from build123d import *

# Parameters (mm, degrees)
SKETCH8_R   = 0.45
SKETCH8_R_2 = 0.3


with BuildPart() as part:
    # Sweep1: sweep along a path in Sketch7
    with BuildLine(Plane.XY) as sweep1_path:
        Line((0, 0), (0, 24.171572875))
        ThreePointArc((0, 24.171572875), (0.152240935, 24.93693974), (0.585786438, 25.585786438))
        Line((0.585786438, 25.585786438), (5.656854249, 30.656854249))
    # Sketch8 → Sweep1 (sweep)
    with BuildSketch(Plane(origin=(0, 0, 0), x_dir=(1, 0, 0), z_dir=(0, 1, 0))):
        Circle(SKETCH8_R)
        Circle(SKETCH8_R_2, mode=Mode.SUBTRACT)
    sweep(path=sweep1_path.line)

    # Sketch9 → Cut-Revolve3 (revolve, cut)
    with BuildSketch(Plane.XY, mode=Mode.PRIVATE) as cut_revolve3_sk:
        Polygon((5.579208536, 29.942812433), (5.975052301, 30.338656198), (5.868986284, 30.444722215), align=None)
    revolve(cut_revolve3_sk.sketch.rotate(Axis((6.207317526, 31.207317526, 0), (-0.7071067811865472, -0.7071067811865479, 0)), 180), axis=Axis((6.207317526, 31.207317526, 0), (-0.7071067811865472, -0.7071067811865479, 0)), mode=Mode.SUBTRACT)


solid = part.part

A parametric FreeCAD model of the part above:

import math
import FreeCAD as App
import Part
import Sketcher

V = App.Vector
Q = App.Units.Quantity


def add_polygon(sketch, points):
    """Adds a closed chain of lines whose ends are joined by coincident constraints."""
    first, n = sketch.GeometryCount, len(points)
    for a, b in zip(points, points[1:] + points[:1]):
        sketch.addGeometry(Part.LineSegment(App.Vector(*a, 0), App.Vector(*b, 0)), False)
    for i in range(n):
        sketch.addConstraint(Sketcher.Constraint("Coincident", first + i, 2, first + (i + 1) % n, 1))

doc = App.newDocument("Part")
body = doc.addObject("PartDesign::Body", "Body")

sketch1 = doc.addObject("Sketcher::SketchObject", "Sketch")
body.addObject(sketch1)
sketch1.AttachmentSupport = (doc.XZ_Plane, [""])
sketch1.MapMode = "FlatFace"
sketch1.addGeometry([
    Part.Circle(V(0, 0, 0), V(0, 0, 1), 0.45),
    Part.Circle(V(0, 0, 0), V(0, 0, 1), 0.3),
], False)
sketch1.addConstraint([
    Sketcher.Constraint("Coincident", 0, 3, -1, 1),
    Sketcher.Constraint("Coincident", 1, 3, -1, 1),
    Sketcher.Constraint("Diameter", 0, 0.9),
    Sketcher.Constraint("Diameter", 1, 0.6),
])

sketch2 = doc.addObject("Sketcher::SketchObject", "Sketch001")
body.addObject(sketch2)
sketch2.AttachmentSupport = (doc.XY_Plane, [""])
sketch2.MapMode = "FlatFace"
sketch2.addGeometry([
    Part.LineSegment(V(0, 0, 0), V(0, 24.2, 0)),
    Part.ArcOfCircle(Part.Circle(V(2, 24.2, 0), V(0, 0, 1), 2), math.radians(135), math.radians(180)),
    Part.LineSegment(V(0.6, 25.6, 0), V(5.7, 30.7, 0)),
], False)
sketch2.addConstraint([
    Sketcher.Constraint("Tangent", 0, 2, 1, 2),
    Sketcher.Constraint("Tangent", 1, 1, 2, 1),
    Sketcher.Constraint("Vertical", 0),
    Sketcher.Constraint("Coincident", 0, 1, -1, 1),
    Sketcher.Constraint("Radius", 1, 2.0),
    Sketcher.Constraint("Angle", 2, Q("45 deg")),
    Sketcher.Constraint("DistanceY", 0, 1, 0, 2, 24.171573),
    Sketcher.Constraint("DistanceY", 1, 3, 2, 2, 6.485281),
])
doc.recompute()

additivepipe = doc.addObject("PartDesign::AdditivePipe", "AdditivePipe")
body.addObject(additivepipe)
additivepipe.Profile = sketch1
additivepipe.Spine = (sketch2, ["Edge1", "Edge2", "Edge3"])

sketch3 = doc.addObject("Sketcher::SketchObject", "Sketch002")
body.addObject(sketch3)
sketch3.AttachmentSupport = (doc.XY_Plane, [""])
sketch3.MapMode = "FlatFace"
add_polygon(sketch3, [(5.58, 29.94), (5.98, 30.34), (5.87, 30.44)])
sketch3.addGeometry(Part.LineSegment(V(5.66, 30.66, 0), V(5.26, 30.26, 0)), True)
sketch3.addConstraint([
    Sketcher.Constraint("Perpendicular", 0, 1),
    Sketcher.Constraint("Perpendicular", 1, 3),
    Sketcher.Constraint("Equal", 0, 3),
    Sketcher.Constraint("Angle", 0, Q("45 deg")),
    Sketcher.Constraint("Angle", 2, Q("-120 deg")),
    Sketcher.Constraint("Distance", 1, 0.15),
    Sketcher.Constraint("DistanceX", 3, 1, 0, 2, 0.318198),
    Sketcher.Constraint("DistanceY", 0, 2, 3, 1, 0.318198),
    Sketcher.Constraint("DistanceX", -1, 1, 2, 2, 5.579209),
    Sketcher.Constraint("DistanceY", -1, 1, 3, 2, 30.26101),
])
groove = doc.addObject("PartDesign::Groove", "Groove")
body.addObject(groove)
groove.Profile = sketch3
groove.ReferenceAxis = (sketch3, ["Axis0"])
groove.Angle = 360

doc.recompute()
